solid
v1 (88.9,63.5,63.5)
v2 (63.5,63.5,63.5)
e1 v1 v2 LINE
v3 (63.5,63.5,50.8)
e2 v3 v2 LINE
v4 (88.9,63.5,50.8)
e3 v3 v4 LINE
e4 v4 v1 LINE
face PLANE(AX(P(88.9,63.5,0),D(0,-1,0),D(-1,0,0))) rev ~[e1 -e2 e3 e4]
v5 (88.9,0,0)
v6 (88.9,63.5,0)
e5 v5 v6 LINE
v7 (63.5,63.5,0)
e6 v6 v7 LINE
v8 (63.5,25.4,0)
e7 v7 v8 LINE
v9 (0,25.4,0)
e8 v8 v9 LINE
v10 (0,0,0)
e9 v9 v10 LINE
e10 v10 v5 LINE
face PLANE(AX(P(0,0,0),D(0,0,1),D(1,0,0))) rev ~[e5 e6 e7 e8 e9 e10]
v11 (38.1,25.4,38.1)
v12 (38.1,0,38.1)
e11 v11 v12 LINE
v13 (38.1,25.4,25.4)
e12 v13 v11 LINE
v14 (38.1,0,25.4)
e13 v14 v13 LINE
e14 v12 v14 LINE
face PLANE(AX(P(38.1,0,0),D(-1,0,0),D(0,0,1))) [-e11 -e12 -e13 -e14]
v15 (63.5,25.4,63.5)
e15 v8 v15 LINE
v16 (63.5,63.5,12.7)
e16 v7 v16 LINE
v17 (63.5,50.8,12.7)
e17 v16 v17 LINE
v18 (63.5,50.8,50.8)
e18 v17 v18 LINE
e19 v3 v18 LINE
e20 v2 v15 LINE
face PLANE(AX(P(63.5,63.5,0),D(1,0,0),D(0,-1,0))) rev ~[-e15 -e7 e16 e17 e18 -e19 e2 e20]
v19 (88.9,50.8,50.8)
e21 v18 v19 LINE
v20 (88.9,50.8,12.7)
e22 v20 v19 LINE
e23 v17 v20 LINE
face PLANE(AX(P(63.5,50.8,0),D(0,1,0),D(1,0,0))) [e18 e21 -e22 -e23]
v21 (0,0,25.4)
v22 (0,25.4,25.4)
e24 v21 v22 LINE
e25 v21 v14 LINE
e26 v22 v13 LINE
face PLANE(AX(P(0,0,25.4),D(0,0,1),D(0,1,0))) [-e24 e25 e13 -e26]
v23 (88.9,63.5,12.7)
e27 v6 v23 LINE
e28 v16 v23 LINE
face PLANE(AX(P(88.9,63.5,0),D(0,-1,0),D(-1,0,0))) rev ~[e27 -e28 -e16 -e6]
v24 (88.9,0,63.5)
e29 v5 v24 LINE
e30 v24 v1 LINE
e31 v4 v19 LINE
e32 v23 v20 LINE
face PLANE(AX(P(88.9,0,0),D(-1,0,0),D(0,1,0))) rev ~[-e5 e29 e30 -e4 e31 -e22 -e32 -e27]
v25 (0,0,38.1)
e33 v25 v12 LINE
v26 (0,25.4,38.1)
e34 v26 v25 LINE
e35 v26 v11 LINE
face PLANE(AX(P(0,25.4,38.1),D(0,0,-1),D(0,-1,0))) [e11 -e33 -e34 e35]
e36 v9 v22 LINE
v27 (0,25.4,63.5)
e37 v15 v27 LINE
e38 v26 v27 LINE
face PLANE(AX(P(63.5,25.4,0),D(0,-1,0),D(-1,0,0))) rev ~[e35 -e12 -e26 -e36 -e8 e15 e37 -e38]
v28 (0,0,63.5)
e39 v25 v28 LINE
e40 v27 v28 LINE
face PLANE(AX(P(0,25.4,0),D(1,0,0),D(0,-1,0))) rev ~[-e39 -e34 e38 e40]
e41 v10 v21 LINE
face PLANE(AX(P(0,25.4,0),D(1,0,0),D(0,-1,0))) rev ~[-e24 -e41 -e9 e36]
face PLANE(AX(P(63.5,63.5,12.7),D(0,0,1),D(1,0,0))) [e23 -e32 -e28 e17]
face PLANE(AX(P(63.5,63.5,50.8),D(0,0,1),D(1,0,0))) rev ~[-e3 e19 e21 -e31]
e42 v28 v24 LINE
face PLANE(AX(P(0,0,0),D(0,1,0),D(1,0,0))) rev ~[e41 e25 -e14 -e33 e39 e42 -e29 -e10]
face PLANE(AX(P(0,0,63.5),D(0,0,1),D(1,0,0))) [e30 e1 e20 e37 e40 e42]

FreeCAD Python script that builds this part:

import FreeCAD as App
import Part
import Sketcher
from FreeCAD import Vector
Q = App.Units.Quantity


def add_polygon(sketch, points):
    """Adds a closed chain of lines whose ends are joined by coincident constraints."""
    first, n = sketch.GeometryCount, len(points)
    for a, b in zip(points, points[1:] + points[:1]):
        sketch.addGeometry(Part.LineSegment(App.Vector(*a, 0), App.Vector(*b, 0)), False)
    for i in range(n):
        sketch.addConstraint(Sketcher.Constraint("Coincident", first + i, 2, first + (i + 1) % n, 1))

doc = App.newDocument("Part")
params = doc.addObject("Spreadsheet::Sheet", "Params")
for row, (alias, value) in enumerate([
    ("sketch1_width", "1 in"),
    ("sketch1_width2", "3.5 in"),
    ("pad1_length", "2.5 in"),
    ("sketch2_width", "1 in"),
    ("sketch2_height", "1.5 in"),
    ("pocket1_length", "0.5 in"),
    ("sketch3_width", "1 in"),
    ("sketch3_height", "0.5 in"),
    ("pocket2_length", "1.5 in"),
], start=1):
    params.set(f"A{row}", alias)
    params.set(f"B{row}", "=" + value)
    params.setAlias(f"B{row}", alias)

body = doc.addObject("PartDesign::Body", "Body")

# Sketch on XY plane
sketch1 = body.newObject("Sketcher::SketchObject", "Sketch")
sketch1.AttachmentSupport = (doc.getObject("XY_Plane"), [""])
sketch1.MapMode = "FlatFace"
add_polygon(sketch1, [(0, 25), (0, 0), (89, 0), (89, 64), (64, 64), (64, 25)])  # lines 0-5
sketch1.addConstraint([
    Sketcher.Constraint("Vertical", 0),
    Sketcher.Constraint("Horizontal", 1),
    Sketcher.Constraint("Vertical", 2),
    Sketcher.Constraint("Horizontal", 3),
    Sketcher.Constraint("Vertical", 4),
    Sketcher.Constraint("Horizontal", 5),
    Sketcher.Constraint("Coincident", 0, 2, -1, 1),
    Sketcher.Constraint("Equal", 3, 0),
    Sketcher.Constraint("Equal", 5, 2),
    Sketcher.Constraint("DistanceX", 3, 2, 3, 1, Q("1 in")),
    Sketcher.Constraint("DistanceX", 1, 1, 1, 2, Q("3.5 in")),
])
sketch1.setExpression("Constraints[15]", "Params.sketch1_width")
sketch1.setExpression("Constraints[16]", "Params.sketch1_width2")
pad1 = body.newObject("PartDesign::Pad", "Pad")
pad1.Profile = sketch1
pad1.setExpression("Length", "Params.pad1_length")

# Sketch on XZ plane
sketch2 = body.newObject("Sketcher::SketchObject", "Sketch001")
sketch2.AttachmentSupport = (doc.getObject("XZ_Plane"), [""])
sketch2.MapMode = "FlatFace"
sketch2.AttachmentOffset = App.Placement(Vector(0, 0, -2.5 * 25.4), App.Rotation())
add_polygon(sketch2, [(89, 51), (89, 13), (64, 13), (64, 51)])  # lines 0-3
sketch2.addConstraint([
    Sketcher.Constraint("Vertical", 0),
    Sketcher.Constraint("Horizontal", 1),
    Sketcher.Constraint("Vertical", 2),
    Sketcher.Constraint("Horizontal", 3),
    Sketcher.Constraint("DistanceX", 1, 2, 1, 1, Q("1 in")),
    Sketcher.Constraint("DistanceY", 0, 2, 0, 1, Q("1.5 in")),
    Sketcher.Constraint("DistanceY", -1, 1, 0, 2, Q("0.5 in")),
    Sketcher.Constraint("DistanceX", -1, 1, 0, 2, Q("3.5 in")),
])
sketch2.setExpression("Constraints[8]", "Params.sketch2_width")
sketch2.setExpression("Constraints[9]", "Params.sketch2_height")
pocket1 = body.newObject("PartDesign::Pocket", "Pocket")
pocket1.Profile = sketch2
pocket1.setExpression("Length", "Params.pocket1_length")
pocket1.Reversed = True

# Sketch on YZ plane
sketch3 = body.newObject("Sketcher::SketchObject", "Sketch002")
sketch3.AttachmentSupport = (doc.getObject("YZ_Plane"), [""])
sketch3.MapMode = "FlatFace"
add_polygon(sketch3, [(25, 25), (0, 25), (0, 38), (25, 38)])  # lines 0-3
sketch3.addConstraint([
    Sketcher.Constraint("Horizontal", 0),
    Sketcher.Constraint("Vertical", 1),
    Sketcher.Constraint("Horizontal", 2),
    Sketcher.Constraint("Vertical", 3),
    Sketcher.Constraint("PointOnObject", 0, 2, -2),
    Sketcher.Constraint("DistanceX", 0, 2, 0, 1, Q("1 in")),
    Sketcher.Constraint("DistanceY", 1, 1, 1, 2, Q("0.5 in")),
    Sketcher.Constraint("DistanceY", -1, 1, 0, 2, Q("1 in")),
])
sketch3.setExpression("Constraints[9]", "Params.sketch3_width")
sketch3.setExpression("Constraints[10]", "Params.sketch3_height")
pocket2 = body.newObject("PartDesign::Pocket", "Pocket001")
pocket2.Profile = sketch3
pocket2.setExpression("Length", "Params.pocket2_length")
pocket2.Reversed = True

doc.recompute()
